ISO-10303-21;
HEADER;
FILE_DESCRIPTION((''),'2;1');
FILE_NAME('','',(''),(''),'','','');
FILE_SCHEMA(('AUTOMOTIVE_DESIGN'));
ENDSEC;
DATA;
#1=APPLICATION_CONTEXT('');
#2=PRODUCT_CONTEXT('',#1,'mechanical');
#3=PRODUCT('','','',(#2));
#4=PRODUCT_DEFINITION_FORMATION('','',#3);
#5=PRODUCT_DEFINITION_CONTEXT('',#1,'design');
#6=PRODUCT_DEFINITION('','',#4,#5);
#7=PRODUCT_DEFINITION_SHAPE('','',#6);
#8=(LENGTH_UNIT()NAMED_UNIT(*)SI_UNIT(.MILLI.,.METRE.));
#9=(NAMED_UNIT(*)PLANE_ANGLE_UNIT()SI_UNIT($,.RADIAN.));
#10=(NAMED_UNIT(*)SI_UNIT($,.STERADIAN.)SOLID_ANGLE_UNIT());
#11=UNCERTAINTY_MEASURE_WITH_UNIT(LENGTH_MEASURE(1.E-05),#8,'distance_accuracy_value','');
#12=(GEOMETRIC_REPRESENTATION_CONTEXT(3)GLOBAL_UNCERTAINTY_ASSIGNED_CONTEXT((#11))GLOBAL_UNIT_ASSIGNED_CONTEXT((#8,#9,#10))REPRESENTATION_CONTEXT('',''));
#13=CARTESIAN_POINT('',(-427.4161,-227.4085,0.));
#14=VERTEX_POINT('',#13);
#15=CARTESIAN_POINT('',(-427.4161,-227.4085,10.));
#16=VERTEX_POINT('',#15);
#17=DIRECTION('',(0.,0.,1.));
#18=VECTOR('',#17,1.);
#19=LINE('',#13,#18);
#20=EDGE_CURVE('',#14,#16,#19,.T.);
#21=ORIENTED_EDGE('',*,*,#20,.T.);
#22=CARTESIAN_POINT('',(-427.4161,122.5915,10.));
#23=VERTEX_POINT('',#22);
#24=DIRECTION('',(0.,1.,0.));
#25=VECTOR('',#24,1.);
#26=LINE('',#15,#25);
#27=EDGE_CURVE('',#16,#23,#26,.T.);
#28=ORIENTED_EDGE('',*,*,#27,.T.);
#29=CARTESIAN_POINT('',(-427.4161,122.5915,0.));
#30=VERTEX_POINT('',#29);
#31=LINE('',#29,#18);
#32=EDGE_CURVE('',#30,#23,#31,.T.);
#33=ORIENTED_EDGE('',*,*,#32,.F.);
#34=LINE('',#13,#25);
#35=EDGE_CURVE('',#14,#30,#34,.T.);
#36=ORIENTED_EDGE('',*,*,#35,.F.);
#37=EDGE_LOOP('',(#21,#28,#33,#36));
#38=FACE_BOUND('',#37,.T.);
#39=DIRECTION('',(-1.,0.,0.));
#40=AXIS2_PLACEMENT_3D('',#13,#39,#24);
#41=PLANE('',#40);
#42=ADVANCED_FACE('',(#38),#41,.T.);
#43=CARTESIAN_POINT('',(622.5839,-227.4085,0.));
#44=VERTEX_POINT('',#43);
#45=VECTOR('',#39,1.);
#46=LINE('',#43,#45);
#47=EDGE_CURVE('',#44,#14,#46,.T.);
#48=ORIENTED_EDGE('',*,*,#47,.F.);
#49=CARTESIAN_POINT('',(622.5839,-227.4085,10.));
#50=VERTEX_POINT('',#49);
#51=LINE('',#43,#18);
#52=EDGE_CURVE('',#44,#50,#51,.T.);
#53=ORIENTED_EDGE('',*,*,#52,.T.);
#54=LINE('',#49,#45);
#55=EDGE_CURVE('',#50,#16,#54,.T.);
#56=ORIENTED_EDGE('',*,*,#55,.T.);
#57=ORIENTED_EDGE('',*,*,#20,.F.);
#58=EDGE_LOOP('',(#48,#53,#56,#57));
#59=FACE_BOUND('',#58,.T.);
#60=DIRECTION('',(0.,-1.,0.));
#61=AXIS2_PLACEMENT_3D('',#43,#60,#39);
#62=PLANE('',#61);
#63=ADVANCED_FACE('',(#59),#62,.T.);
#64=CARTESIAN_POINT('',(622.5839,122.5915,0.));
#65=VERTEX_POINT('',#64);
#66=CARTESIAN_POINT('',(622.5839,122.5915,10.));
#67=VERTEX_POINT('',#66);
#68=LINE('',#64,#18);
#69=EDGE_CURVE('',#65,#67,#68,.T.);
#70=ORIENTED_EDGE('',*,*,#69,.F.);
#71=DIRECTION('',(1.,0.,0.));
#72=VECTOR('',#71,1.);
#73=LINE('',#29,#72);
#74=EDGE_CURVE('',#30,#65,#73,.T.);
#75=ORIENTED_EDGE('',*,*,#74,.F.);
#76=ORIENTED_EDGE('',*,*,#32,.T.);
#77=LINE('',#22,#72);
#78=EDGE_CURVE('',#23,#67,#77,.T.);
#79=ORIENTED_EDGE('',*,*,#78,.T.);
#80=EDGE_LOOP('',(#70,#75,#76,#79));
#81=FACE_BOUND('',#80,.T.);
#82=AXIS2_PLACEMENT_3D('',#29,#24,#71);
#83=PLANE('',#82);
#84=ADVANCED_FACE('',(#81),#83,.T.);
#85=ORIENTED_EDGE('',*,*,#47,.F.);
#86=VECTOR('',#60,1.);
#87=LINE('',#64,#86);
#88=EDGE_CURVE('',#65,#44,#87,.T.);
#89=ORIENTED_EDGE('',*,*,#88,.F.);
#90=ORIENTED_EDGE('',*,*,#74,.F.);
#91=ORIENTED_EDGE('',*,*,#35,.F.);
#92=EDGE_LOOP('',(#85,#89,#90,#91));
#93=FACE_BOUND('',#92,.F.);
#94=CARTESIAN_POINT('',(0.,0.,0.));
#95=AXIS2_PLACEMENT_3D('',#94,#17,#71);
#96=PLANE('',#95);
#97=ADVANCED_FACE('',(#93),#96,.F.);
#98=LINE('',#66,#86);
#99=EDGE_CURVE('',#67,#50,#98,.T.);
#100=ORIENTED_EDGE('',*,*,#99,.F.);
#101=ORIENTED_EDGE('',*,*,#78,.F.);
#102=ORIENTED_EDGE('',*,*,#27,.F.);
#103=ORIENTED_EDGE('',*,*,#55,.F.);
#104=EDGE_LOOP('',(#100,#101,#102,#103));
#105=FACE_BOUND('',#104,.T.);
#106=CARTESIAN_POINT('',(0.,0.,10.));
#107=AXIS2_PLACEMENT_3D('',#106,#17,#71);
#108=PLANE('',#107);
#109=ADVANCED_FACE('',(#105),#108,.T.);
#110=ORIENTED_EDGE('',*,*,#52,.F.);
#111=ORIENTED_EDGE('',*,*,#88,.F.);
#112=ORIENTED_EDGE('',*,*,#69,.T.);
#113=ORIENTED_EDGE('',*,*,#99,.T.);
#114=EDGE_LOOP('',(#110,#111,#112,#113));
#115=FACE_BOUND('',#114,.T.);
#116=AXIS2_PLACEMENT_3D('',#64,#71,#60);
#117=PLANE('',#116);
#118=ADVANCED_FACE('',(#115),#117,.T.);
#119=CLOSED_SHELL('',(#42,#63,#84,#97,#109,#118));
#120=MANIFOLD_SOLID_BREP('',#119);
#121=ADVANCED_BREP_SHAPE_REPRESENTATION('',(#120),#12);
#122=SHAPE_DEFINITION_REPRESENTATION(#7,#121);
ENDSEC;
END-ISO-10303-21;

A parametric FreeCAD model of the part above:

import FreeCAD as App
import Part
import Sketcher

V = App.Vector
Q = App.Units.Quantity

doc = App.newDocument("Part")
body = doc.addObject("PartDesign::Body", "Body")

# Sketch on XY plane
sketch1 = body.newObject("Sketcher::SketchObject", "Sketch")
sketch1.AttachmentSupport = (doc.getObject("XY_Plane"), [""])
sketch1.MapMode = "FlatFace"
sketch1.addGeometry(Part.LineSegment(V(-427.4161, -227.4085, 0), V(622.5839, -227.4085, 0)), False)
sketch1.addGeometry(Part.LineSegment(V(622.5839, -227.4085, 0), V(622.5839, 122.5915, 0)), False)
sketch1.addGeometry(Part.LineSegment(V(622.5839, 122.5915, 0), V(-427.4161, 122.5915, 0)), False)
sketch1.addGeometry(Part.LineSegment(V(-427.4161, 122.5915, 0), V(-427.4161, -227.4085, 0)), False)
sketch1.addConstraint(Sketcher.Constraint("Coincident", 0, 2, 1, 1))
sketch1.addConstraint(Sketcher.Constraint("Coincident", 1, 2, 2, 1))
sketch1.addConstraint(Sketcher.Constraint("Coincident", 2, 2, 3, 1))
sketch1.addConstraint(Sketcher.Constraint("Coincident", 3, 2, 0, 1))
sketch1.addConstraint(Sketcher.Constraint("Horizontal", 0))
sketch1.addConstraint(Sketcher.Constraint("Vertical", 1))
sketch1.addConstraint(Sketcher.Constraint("Horizontal", 2))
sketch1.addConstraint(Sketcher.Constraint("Vertical", 3))
sketch1.addConstraint(Sketcher.Constraint("DistanceX", 0, 1, 0, 2, Q("1050 mm")))
sketch1.addConstraint(Sketcher.Constraint("DistanceY", 1, 1, 1, 2, Q("350 mm")))
sketch1.addConstraint(Sketcher.Constraint("DistanceX", -1, 1, 0, 2, Q("622.584 mm")))
sketch1.addConstraint(Sketcher.Constraint("DistanceY", 0, 2, -1, 1, Q("227.4085 mm")))
pad1 = body.newObject("PartDesign::Pad", "Pad")
pad1.Profile = sketch1
pad1.Length = 10

doc.recompute()
